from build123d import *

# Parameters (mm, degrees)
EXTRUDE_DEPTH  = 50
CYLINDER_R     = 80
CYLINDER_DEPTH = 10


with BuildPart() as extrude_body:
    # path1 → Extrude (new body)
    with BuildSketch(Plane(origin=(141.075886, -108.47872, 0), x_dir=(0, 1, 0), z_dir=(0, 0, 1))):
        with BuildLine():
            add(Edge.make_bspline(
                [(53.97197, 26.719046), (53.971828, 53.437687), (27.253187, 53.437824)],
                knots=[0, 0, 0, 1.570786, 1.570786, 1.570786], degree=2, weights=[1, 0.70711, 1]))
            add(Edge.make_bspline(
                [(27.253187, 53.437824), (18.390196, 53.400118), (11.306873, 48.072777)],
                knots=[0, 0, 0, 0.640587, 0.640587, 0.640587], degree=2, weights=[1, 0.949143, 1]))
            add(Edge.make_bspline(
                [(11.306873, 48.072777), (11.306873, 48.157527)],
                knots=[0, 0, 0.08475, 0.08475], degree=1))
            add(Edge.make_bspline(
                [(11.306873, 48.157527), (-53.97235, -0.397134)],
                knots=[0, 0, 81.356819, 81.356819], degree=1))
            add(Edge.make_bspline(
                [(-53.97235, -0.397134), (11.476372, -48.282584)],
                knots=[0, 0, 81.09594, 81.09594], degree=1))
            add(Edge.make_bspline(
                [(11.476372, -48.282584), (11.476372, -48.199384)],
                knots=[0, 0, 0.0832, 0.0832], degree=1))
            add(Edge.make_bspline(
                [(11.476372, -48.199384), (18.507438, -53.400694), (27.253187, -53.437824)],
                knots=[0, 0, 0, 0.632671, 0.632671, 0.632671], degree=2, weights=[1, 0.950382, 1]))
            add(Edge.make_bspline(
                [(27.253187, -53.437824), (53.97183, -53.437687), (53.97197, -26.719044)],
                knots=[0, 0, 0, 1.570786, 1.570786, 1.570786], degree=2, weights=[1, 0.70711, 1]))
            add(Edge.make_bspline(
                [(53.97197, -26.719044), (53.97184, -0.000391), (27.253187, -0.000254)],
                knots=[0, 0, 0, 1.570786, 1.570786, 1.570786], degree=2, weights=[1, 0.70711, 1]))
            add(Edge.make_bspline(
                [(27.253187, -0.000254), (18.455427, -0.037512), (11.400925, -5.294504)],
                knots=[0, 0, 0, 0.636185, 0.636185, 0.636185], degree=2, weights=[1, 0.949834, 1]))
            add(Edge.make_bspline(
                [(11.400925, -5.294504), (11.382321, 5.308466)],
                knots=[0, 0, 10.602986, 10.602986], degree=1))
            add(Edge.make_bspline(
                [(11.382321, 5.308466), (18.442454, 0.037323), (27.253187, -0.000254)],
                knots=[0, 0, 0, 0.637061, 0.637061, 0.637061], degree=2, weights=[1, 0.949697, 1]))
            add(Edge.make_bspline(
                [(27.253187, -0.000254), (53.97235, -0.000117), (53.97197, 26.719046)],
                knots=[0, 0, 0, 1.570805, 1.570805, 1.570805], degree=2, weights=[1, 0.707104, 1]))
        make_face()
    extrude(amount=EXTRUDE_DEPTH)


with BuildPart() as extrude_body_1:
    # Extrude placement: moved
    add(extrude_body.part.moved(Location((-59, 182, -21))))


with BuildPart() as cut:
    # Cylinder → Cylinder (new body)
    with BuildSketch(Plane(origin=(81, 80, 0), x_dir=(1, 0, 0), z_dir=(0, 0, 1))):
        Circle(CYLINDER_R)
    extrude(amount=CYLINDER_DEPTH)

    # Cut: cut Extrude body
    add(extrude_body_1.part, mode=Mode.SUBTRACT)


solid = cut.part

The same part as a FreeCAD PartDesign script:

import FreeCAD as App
import Part
import Sketcher

V = App.Vector

doc = App.newDocument("Part")
body = doc.addObject("PartDesign::Body", "Body")

# Sketch on XY plane
sketch1 = body.newObject("Sketcher::SketchObject", "Sketch")
sketch1.AttachmentSupport = (doc.getObject("XY_Plane"), [""])
sketch1.MapMode = "FlatFace"
sketch1.addGeometry([
    Part.BSplineCurve([V(114.35684, -54.50675, 0), V(87.638199, -54.506892, 0), V(87.638062, -81.225533, 0)], [3, 3], [0, 1.570786], False, 2, [1, 0.70711, 1], False),  # 0
    Part.BSplineCurve([V(87.638062, -81.225533, 0), V(87.675768, -90.088524, 0), V(93.003109, -97.171847, 0)], [3, 3], [0, 0.640587], False, 2, [1, 0.949143, 1], False),  # 1
    Part.BSplineCurve([V(93.003109, -97.171847, 0), V(92.918359, -97.171847, 0)], [2, 2], [0, 0.08475], False, 1, [1, 1], False),  # 2
    Part.BSplineCurve([V(92.918359, -97.171847, 0), V(141.47302, -162.45107, 0)], [2, 2], [0, 81.356819], False, 1, [1, 1], False),  # 3
    Part.BSplineCurve([V(141.47302, -162.45107, 0), V(189.35847, -97.002348, 0)], [2, 2], [0, 81.09594], False, 1, [1, 1], False),  # 4
    Part.BSplineCurve([V(189.35847, -97.002348, 0), V(189.27527, -97.002348, 0)], [2, 2], [0, 0.0832], False, 1, [1, 1], False),  # 5
    Part.BSplineCurve([V(189.27527, -97.002348, 0), V(194.47658, -89.971282, 0), V(194.51371, -81.225533, 0)], [3, 3], [0, 0.632671], False, 2, [1, 0.950382, 1], False),  # 6
    Part.BSplineCurve([V(194.51371, -81.225533, 0), V(194.513573, -54.50689, 0), V(167.79493, -54.50675, 0)], [3, 3], [0, 1.570786], False, 2, [1, 0.70711, 1], False),  # 7
    Part.BSplineCurve([V(167.79493, -54.50675, 0), V(141.076277, -54.50688, 0), V(141.07614, -81.225533, 0)], [3, 3], [0, 1.570786], False, 2, [1, 0.70711, 1], False),  # 8
    Part.BSplineCurve([V(141.07614, -81.225533, 0), V(141.113398, -90.023293, 0), V(146.37039, -97.077795, 0)], [3, 3], [0, 0.636185], False, 2, [1, 0.949834, 1], False),  # 9
    Part.BSplineCurve([V(146.37039, -97.077795, 0), V(135.76742, -97.096399, 0)], [2, 2], [0, 10.602986], False, 1, [1, 1], False),  # 10
    Part.BSplineCurve([V(135.76742, -97.096399, 0), V(141.038563, -90.036266, 0), V(141.07614, -81.225533, 0)], [3, 3], [0, 0.637061], False, 2, [1, 0.949697, 1], False),  # 11
    Part.BSplineCurve([V(141.07614, -81.225533, 0), V(141.076003, -54.50637, 0), V(114.35684, -54.50675, 0)], [3, 3], [0, 1.570805], False, 2, [1, 0.707104, 1], False),  # 12
], False)
sketch1.addConstraint([
    Sketcher.Constraint("Block", 0),
    Sketcher.Constraint("Block", 1),
    Sketcher.Constraint("Block", 2),
    Sketcher.Constraint("Block", 3),
    Sketcher.Constraint("Block", 4),
    Sketcher.Constraint("Block", 5),
    Sketcher.Constraint("Block", 6),
    Sketcher.Constraint("Block", 7),
    Sketcher.Constraint("Block", 8),
    Sketcher.Constraint("Block", 9),
    Sketcher.Constraint("Block", 10),
    Sketcher.Constraint("Block", 11),
    Sketcher.Constraint("Block", 12),
])
pad1 = body.newObject("PartDesign::Pad", "Pad")
pad1.Profile = sketch1
pad1.Length = 50
body2 = doc.addObject("PartDesign::Body", "Body001")
doc.recompute()

body.Placement = App.Placement(V(-59, 182, -21), App.Rotation(V(0, 0, 1), 0))
boolean = body2.newObject("PartDesign::Boolean", "Boolean")
boolean.Type = "Fuse"
boolean.addObjects([body])
body3 = doc.addObject("PartDesign::Body", "Body002")
body3.AllowCompound = True

# Sketch on XY plane
sketch2 = body3.newObject("Sketcher::SketchObject", "Sketch001")
sketch2.AttachmentSupport = (doc.getObject("XY_Plane002"), [""])
sketch2.MapMode = "FlatFace"
sketch2.addGeometry(Part.Circle(V(81, 80, 0), V(0, 0, 1), 80), False)
sketch2.addConstraint([
    Sketcher.Constraint("Diameter", 0, 160.0),
    Sketcher.Constraint("DistanceX", -1, 1, 0, 3, 81.0),
    Sketcher.Constraint("DistanceY", -1, 1, 0, 3, 80.0),
])
pad2 = body3.newObject("PartDesign::Pad", "Pad001")
pad2.Profile = sketch2
pad2.Length = 10
doc.recompute()

boolean2 = body3.newObject("PartDesign::Boolean", "Boolean001")
boolean2.Type = "Cut"
boolean2.addObjects([body2])

doc.recompute()
